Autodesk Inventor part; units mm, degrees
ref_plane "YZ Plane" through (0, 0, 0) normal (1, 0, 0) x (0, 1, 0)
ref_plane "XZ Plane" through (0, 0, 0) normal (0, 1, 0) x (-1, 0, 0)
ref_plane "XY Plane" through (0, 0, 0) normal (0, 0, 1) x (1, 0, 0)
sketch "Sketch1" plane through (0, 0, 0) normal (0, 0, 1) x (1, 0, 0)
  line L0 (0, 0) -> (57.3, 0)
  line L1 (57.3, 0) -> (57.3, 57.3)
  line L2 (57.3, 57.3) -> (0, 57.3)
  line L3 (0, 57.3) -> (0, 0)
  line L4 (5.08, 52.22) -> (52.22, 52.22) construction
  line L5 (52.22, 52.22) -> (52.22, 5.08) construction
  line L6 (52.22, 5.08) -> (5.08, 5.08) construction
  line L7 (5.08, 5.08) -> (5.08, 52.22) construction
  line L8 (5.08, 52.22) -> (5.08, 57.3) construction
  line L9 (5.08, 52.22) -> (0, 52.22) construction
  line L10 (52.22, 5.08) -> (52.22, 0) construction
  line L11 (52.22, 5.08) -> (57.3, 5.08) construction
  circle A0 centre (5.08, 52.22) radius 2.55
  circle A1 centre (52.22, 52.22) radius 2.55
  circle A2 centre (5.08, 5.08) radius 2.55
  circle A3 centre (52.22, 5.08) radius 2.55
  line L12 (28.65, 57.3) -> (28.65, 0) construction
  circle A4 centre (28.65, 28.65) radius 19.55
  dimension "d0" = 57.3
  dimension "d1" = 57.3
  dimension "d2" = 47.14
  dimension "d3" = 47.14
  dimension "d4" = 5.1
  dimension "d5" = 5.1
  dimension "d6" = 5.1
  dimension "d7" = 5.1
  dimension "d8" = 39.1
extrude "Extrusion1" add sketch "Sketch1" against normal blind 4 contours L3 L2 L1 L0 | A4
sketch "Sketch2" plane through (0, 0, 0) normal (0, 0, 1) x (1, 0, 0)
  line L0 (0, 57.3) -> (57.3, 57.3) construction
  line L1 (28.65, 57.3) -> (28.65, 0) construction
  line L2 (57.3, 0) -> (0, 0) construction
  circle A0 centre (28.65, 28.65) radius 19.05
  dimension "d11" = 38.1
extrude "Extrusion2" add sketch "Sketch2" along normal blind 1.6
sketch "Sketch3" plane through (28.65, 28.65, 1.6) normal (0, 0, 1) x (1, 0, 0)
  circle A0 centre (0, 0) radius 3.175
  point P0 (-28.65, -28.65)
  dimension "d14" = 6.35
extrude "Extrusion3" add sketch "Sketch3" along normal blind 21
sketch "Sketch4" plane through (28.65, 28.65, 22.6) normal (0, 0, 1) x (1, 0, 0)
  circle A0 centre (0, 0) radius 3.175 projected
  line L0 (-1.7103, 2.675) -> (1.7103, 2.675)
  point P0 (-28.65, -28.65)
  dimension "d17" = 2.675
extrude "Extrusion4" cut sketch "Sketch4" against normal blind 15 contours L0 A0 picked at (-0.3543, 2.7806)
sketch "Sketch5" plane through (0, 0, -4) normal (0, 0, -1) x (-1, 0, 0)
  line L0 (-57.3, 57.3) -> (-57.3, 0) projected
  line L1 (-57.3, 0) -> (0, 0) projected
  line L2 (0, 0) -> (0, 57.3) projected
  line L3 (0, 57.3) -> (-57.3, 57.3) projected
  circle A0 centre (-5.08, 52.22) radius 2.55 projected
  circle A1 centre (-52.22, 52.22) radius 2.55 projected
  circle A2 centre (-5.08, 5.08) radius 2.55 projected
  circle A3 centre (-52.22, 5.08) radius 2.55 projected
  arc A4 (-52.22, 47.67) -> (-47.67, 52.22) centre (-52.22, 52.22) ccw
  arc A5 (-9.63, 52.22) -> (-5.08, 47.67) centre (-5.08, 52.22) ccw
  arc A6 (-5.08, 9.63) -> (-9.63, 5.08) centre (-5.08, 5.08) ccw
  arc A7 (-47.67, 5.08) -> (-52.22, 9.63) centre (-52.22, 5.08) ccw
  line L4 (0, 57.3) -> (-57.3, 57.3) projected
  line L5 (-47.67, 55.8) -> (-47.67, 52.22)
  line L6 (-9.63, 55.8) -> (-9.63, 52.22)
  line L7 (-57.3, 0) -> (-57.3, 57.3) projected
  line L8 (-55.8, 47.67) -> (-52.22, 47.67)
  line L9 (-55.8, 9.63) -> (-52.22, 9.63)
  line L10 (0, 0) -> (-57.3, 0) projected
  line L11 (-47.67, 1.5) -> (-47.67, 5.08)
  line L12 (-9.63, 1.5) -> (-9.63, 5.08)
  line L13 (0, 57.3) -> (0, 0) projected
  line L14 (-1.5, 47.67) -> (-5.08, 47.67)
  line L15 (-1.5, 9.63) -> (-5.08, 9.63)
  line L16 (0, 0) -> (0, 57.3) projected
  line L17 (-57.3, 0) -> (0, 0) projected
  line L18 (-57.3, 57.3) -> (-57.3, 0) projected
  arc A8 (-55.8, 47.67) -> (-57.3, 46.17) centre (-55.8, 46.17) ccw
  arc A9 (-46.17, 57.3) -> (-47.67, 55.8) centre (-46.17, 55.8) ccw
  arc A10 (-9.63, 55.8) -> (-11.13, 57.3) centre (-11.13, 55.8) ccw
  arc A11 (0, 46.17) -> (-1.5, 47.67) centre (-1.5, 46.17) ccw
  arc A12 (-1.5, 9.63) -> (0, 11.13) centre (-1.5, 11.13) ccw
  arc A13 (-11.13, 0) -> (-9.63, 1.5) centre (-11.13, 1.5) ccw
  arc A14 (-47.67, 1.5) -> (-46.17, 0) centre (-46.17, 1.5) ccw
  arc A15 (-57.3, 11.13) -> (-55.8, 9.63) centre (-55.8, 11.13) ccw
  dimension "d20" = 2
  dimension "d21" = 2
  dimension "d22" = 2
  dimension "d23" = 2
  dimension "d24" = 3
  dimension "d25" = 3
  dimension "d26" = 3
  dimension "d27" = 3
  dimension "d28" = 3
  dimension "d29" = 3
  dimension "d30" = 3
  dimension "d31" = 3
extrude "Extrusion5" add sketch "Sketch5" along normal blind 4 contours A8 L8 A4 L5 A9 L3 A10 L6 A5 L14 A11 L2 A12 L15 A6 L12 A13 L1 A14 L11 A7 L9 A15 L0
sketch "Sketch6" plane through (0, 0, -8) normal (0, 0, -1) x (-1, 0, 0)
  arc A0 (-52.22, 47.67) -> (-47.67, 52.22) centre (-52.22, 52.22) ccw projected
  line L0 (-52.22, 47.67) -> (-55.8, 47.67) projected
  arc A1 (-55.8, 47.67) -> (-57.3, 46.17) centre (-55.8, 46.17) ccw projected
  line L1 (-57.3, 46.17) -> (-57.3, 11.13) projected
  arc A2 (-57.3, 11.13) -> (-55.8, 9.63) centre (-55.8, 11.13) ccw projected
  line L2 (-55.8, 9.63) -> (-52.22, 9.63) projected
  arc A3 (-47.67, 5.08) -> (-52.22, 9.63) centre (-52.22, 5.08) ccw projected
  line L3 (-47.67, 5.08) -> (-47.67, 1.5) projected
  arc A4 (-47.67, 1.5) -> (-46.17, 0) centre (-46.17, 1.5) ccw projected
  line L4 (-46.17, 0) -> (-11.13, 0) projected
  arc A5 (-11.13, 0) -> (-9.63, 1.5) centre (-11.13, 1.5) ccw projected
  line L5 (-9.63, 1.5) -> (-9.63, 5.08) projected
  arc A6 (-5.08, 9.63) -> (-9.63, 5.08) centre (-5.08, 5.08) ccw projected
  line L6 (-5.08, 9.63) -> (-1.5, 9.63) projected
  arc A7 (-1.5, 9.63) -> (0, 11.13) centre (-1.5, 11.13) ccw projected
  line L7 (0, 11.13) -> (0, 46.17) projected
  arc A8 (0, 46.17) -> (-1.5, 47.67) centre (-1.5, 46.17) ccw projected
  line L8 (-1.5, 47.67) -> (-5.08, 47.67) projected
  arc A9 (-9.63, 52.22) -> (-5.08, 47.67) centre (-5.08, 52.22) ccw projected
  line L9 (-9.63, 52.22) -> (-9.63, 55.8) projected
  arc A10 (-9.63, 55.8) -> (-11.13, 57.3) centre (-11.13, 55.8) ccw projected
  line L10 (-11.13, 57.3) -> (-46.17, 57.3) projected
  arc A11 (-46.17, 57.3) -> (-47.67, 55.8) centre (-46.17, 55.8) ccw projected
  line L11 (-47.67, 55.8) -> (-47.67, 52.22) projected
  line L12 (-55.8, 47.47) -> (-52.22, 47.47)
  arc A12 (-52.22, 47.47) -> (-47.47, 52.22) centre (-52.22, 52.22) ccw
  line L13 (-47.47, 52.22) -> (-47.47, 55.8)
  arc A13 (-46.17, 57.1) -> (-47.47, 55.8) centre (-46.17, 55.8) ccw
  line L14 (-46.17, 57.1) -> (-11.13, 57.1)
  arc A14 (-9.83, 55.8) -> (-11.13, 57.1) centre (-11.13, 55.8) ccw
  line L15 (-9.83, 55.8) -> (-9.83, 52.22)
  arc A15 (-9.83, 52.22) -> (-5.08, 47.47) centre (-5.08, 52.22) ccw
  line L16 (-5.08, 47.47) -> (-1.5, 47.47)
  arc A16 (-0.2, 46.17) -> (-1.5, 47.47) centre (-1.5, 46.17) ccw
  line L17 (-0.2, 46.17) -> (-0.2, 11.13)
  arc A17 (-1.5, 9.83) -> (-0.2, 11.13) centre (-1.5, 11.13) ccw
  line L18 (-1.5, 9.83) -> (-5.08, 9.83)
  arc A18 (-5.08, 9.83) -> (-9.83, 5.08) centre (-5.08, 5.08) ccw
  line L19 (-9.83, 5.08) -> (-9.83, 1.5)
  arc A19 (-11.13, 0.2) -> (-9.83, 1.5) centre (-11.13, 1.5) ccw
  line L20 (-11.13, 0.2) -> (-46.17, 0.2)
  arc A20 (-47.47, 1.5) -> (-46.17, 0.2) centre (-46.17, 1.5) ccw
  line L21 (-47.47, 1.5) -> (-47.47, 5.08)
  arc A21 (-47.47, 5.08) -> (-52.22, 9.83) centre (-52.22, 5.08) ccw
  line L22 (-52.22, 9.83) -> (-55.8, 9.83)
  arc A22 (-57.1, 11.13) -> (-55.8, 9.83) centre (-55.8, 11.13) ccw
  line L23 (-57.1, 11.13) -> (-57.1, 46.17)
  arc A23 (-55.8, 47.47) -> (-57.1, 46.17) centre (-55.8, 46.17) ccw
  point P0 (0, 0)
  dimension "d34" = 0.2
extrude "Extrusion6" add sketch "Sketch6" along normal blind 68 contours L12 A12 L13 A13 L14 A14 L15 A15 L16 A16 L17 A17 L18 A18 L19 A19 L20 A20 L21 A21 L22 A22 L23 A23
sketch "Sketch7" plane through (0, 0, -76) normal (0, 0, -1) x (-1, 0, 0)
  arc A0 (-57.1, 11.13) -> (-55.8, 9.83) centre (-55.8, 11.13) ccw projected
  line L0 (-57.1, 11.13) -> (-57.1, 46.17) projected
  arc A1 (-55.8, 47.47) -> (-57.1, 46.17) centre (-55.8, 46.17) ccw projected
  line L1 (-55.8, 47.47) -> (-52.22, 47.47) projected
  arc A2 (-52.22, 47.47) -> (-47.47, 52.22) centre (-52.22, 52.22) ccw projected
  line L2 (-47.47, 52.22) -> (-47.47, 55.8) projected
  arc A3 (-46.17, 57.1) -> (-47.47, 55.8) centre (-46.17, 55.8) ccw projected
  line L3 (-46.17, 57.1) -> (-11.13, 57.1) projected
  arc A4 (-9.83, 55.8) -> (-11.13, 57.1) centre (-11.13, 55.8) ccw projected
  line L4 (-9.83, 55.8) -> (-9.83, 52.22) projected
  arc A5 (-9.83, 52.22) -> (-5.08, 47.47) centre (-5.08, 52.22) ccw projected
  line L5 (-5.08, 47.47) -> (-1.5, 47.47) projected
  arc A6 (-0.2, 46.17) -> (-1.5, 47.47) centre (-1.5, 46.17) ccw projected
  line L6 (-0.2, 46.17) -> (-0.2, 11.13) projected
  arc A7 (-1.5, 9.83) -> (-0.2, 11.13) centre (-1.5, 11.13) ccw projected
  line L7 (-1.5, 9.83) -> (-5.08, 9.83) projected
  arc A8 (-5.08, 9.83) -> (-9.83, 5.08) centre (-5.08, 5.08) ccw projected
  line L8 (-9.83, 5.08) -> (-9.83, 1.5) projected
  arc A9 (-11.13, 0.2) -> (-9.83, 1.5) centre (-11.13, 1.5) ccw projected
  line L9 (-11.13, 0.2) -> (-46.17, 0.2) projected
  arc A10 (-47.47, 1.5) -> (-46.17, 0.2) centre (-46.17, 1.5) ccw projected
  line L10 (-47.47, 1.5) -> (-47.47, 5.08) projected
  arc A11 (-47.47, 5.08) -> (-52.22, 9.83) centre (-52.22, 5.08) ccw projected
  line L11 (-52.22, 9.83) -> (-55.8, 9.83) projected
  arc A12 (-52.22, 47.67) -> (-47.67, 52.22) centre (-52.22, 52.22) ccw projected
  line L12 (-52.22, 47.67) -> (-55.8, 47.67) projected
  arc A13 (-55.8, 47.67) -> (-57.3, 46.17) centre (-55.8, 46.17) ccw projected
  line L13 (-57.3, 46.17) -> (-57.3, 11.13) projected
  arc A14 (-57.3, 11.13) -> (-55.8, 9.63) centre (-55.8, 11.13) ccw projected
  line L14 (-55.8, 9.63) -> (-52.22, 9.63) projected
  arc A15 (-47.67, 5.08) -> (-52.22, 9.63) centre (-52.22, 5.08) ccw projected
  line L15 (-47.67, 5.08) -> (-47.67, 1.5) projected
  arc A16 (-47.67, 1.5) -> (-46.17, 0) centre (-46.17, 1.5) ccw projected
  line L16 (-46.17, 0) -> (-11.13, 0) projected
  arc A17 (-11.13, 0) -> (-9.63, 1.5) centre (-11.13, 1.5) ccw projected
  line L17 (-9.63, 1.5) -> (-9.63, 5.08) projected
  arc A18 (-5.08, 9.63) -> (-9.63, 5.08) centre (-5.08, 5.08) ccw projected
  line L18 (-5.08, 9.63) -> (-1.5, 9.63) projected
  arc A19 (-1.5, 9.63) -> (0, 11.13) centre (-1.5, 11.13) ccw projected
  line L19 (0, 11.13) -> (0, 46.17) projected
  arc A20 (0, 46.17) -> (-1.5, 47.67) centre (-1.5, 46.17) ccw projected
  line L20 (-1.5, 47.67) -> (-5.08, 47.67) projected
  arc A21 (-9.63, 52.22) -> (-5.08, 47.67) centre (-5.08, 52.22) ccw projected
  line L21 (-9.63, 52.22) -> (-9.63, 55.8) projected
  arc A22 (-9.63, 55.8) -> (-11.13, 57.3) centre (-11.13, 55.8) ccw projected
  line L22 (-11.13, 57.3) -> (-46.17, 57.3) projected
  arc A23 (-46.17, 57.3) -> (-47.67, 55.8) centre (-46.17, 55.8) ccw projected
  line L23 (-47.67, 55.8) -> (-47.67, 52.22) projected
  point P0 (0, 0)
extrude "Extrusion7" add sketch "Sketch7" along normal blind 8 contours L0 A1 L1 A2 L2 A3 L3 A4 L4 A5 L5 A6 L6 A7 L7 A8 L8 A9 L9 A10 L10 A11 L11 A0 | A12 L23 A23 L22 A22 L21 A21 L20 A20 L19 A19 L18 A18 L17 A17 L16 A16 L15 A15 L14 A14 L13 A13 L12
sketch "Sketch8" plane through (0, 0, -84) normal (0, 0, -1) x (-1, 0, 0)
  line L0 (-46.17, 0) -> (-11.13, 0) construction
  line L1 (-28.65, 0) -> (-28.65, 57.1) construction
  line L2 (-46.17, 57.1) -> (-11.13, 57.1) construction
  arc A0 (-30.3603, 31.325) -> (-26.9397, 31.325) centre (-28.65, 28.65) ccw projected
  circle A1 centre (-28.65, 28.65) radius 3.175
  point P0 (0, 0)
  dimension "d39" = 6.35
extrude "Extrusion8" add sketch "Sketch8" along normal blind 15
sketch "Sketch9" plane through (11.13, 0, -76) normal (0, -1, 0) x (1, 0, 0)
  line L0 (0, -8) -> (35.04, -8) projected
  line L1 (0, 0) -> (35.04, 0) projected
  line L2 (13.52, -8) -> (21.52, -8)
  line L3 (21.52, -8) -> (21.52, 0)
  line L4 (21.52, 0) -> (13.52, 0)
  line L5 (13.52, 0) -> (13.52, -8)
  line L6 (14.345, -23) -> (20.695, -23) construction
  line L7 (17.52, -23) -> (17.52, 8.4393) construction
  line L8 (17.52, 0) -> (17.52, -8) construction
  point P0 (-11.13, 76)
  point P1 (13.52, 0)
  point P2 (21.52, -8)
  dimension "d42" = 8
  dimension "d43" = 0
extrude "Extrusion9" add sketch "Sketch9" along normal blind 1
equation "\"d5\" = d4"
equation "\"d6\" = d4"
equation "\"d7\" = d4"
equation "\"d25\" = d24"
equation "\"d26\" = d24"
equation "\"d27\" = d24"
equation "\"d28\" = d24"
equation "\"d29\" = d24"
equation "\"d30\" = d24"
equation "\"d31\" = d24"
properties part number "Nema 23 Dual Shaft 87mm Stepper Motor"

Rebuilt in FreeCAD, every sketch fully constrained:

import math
import FreeCAD as App
import Part
import Sketcher
from FreeCAD import Vector
Q = App.Units.Quantity


def add_polygon(sketch, points):
    """Adds a closed chain of lines whose ends are joined by coincident constraints."""
    first, n = sketch.GeometryCount, len(points)
    for a, b in zip(points, points[1:] + points[:1]):
        sketch.addGeometry(Part.LineSegment(App.Vector(*a, 0), App.Vector(*b, 0)), False)
    for i in range(n):
        sketch.addConstraint(Sketcher.Constraint("Coincident", first + i, 2, first + (i + 1) % n, 1))

doc = App.newDocument("Part")
body = doc.addObject("PartDesign::Body", "Body")

sketch1 = body.newObject("Sketcher::SketchObject", "Sketch")
sketch1.AttachmentSupport = (doc.getObject("XY_Plane"), [""])
sketch1.MapMode = "FlatFace"
add_polygon(sketch1, [(0, 57.3), (0, 0), (57.3, 0), (57.3, 57.3)])
sketch1.addGeometry(Part.Circle(Vector(5.08, 5.08, 0), Vector(0, 0, 1), 2.55), False)
sketch1.addGeometry(Part.Circle(Vector(52.22, 5.08, 0), Vector(0, 0, 1), 2.55), False)
sketch1.addGeometry(Part.Circle(Vector(5.08, 52.22, 0), Vector(0, 0, 1), 2.55), False)
sketch1.addGeometry(Part.Circle(Vector(52.22, 52.22, 0), Vector(0, 0, 1), 2.55), False)
sketch1.addConstraint([
    Sketcher.Constraint("Vertical", 0),
    Sketcher.Constraint("Horizontal", 1),
    Sketcher.Constraint("Vertical", 2),
    Sketcher.Constraint("Horizontal", 3),
    Sketcher.Constraint("Coincident", 0, 2, -1, 1),
    Sketcher.Constraint("Equal", 4, 5),
    Sketcher.Constraint("Equal", 5, 6),
    Sketcher.Constraint("Equal", 6, 7),
    Sketcher.Constraint("Horizontal", 4, 3, 5, 3),
    Sketcher.Constraint("Horizontal", 6, 3, 7, 3),
    Sketcher.Constraint("Vertical", 4, 3, 6, 3),
    Sketcher.Constraint("Vertical", 5, 3, 7, 3),
    Sketcher.Constraint("Equal", 3, 0),
    Sketcher.Constraint("Diameter", 4, Q("5.1 mm")),
    Sketcher.Constraint("DistanceX", 1, 1, 1, 2, Q("57.3 mm")),
    Sketcher.Constraint("DistanceX", 4, 3, 5, 3, Q("47.14 mm")),
    Sketcher.Constraint("DistanceY", 4, 3, 6, 3, Q("47.14 mm")),
    Sketcher.Constraint("DistanceX", -1, 1, 4, 3, Q("5.08 mm")),
    Sketcher.Constraint("DistanceY", -1, 1, 4, 3, Q("5.08 mm")),
])
pad1 = body.newObject("PartDesign::Pad", "Pad")
pad1.Profile = sketch1
pad1.Length = 4
pad1.Reversed = True

sketch2 = body.newObject("Sketcher::SketchObject", "Sketch001")
sketch2.AttachmentSupport = (doc.getObject("XY_Plane"), [""])
sketch2.MapMode = "FlatFace"
sketch2.addGeometry(Part.Circle(Vector(28.65, 28.65, 0), Vector(0, 0, 1), 19.05), False)
sketch2.addConstraint([
    Sketcher.Constraint("Diameter", 0, Q("38.1 mm")),
    Sketcher.Constraint("DistanceX", -1, 1, 0, 3, Q("28.65 mm")),
    Sketcher.Constraint("DistanceY", -1, 1, 0, 3, Q("28.65 mm")),
])
pad2 = body.newObject("PartDesign::Pad", "Pad001")
pad2.Profile = sketch2
pad2.Length = 1.6

sketch3 = body.newObject("Sketcher::SketchObject", "Sketch002")
sketch3.AttachmentSupport = (doc.getObject("XY_Plane"), [""])
sketch3.MapMode = "FlatFace"
sketch3.AttachmentOffset = App.Placement(Vector(0, 0, 1.6), App.Rotation())
sketch3.addGeometry(Part.Circle(Vector(28.65, 28.65, 0), Vector(0, 0, 1), 3.175), False)
sketch3.addConstraint([
    Sketcher.Constraint("Diameter", 0, Q("6.35 mm")),
    Sketcher.Constraint("DistanceX", -1, 1, 0, 3, Q("28.65 mm")),
    Sketcher.Constraint("DistanceY", -1, 1, 0, 3, Q("28.65 mm")),
])
pad3 = body.newObject("PartDesign::Pad", "Pad002")
pad3.Profile = sketch3
pad3.Length = 21

sketch4 = body.newObject("Sketcher::SketchObject", "Sketch003")
sketch4.AttachmentSupport = (doc.getObject("XY_Plane"), [""])
sketch4.MapMode = "FlatFace"
sketch4.AttachmentOffset = App.Placement(Vector(0, 0, 22.6), App.Rotation())
sketch4.addGeometry([
    Part.LineSegment(Vector(26.9397, 31.325, 0), Vector(30.3603, 31.325, 0)),
    Part.ArcOfCircle(Part.Circle(Vector(28.65, 28.65, 0), Vector(0, 0, 1), 3.175), math.radians(57.406596), math.radians(122.593404)),
], False)
sketch4.addConstraint([
    Sketcher.Constraint("Coincident", 0, 1, 1, 2),
    Sketcher.Constraint("Coincident", 1, 1, 0, 2),
    Sketcher.Constraint("Horizontal", 0),
    Sketcher.Constraint("Radius", 1, Q("3.175 mm")),
    Sketcher.Constraint("DistanceY", 1, 3, 0, 1, Q("2.675 mm")),
    Sketcher.Constraint("DistanceX", -1, 1, 1, 3, Q("28.65 mm")),
    Sketcher.Constraint("DistanceY", -1, 1, 1, 3, Q("28.65 mm")),
])
pocket1 = body.newObject("PartDesign::Pocket", "Pocket")
pocket1.Profile = sketch4
pocket1.Length = 15

sketch5 = body.newObject("Sketcher::SketchObject", "Sketch004")
sketch5.AttachmentSupport = (doc.getObject("XY_Plane"), [""])
sketch5.MapMode = "FlatFace"
sketch5.AttachmentOffset = App.Placement(Vector(0, 0, -4), App.Rotation())
sketch5.addGeometry([
    Part.ArcOfCircle(Part.Circle(Vector(55.8, 46.17, 0), Vector(0, 0, 1), 1.5), math.radians(0), math.radians(90)),
    Part.LineSegment(Vector(57.3, 46.17, 0), Vector(57.3, 11.13, 0)),
    Part.ArcOfCircle(Part.Circle(Vector(55.8, 11.13, 0), Vector(0, 0, 1), 1.5), math.radians(-90), math.radians(0)),
    Part.LineSegment(Vector(55.8, 9.63, 0), Vector(52.22, 9.63, 0)),
    Part.ArcOfCircle(Part.Circle(Vector(52.22, 5.08, 0), Vector(0, 0, 1), 4.55), math.radians(90), math.radians(180)),
    Part.LineSegment(Vector(47.67, 5.08, 0), Vector(47.67, 1.5, 0)),
    Part.ArcOfCircle(Part.Circle(Vector(46.17, 1.5, 0), Vector(0, 0, 1), 1.5), math.radians(-90), math.radians(0)),
    Part.LineSegment(Vector(46.17, 0, 0), Vector(11.13, 0, 0)),
    Part.ArcOfCircle(Part.Circle(Vector(11.13, 1.5, 0), Vector(0, 0, 1), 1.5), math.radians(180), math.radians(270)),
    Part.LineSegment(Vector(9.63, 1.5, 0), Vector(9.63, 5.08, 0)),
    Part.ArcOfCircle(Part.Circle(Vector(5.08, 5.08, 0), Vector(0, 0, 1), 4.55), math.radians(0), math.radians(90)),
    Part.LineSegment(Vector(5.08, 9.63, 0), Vector(1.5, 9.63, 0)),
    Part.ArcOfCircle(Part.Circle(Vector(1.5, 11.13, 0), Vector(0, 0, 1), 1.5), math.radians(180), math.radians(270)),
    Part.LineSegment(Vector(0, 11.13, 0), Vector(0, 46.17, 0)),
    Part.ArcOfCircle(Part.Circle(Vector(1.5, 46.17, 0), Vector(0, 0, 1), 1.5), math.radians(90), math.radians(180)),
    Part.LineSegment(Vector(1.5, 47.67, 0), Vector(5.08, 47.67, 0)),
    Part.ArcOfCircle(Part.Circle(Vector(5.08, 52.22, 0), Vector(0, 0, 1), 4.55), math.radians(-90), math.radians(0)),
    Part.LineSegment(Vector(9.63, 52.22, 0), Vector(9.63, 55.8, 0)),
    Part.ArcOfCircle(Part.Circle(Vector(11.13, 55.8, 0), Vector(0, 0, 1), 1.5), math.radians(90), math.radians(180)),
    Part.LineSegment(Vector(11.13, 57.3, 0), Vector(46.17, 57.3, 0)),
    Part.ArcOfCircle(Part.Circle(Vector(46.17, 55.8, 0), Vector(0, 0, 1), 1.5), math.radians(0), math.radians(90)),
    Part.LineSegment(Vector(47.67, 55.8, 0), Vector(47.67, 52.22, 0)),
    Part.ArcOfCircle(Part.Circle(Vector(52.22, 52.22, 0), Vector(0, 0, 1), 4.55), math.radians(180), math.radians(270)),
    Part.LineSegment(Vector(52.22, 47.67, 0), Vector(55.8, 47.67, 0)),
], False)
sketch5.addConstraint([
    Sketcher.Constraint("Tangent", 0, 1, 1, 1),
    Sketcher.Constraint("Tangent", 1, 2, 2, 2),
    Sketcher.Constraint("Tangent", 2, 1, 3, 1),
    Sketcher.Constraint("Tangent", 3, 2, 4, 1),
    Sketcher.Constraint("Tangent", 4, 2, 5, 1),
    Sketcher.Constraint("Tangent", 5, 2, 6, 2),
    Sketcher.Constraint("Tangent", 6, 1, 7, 1),
    Sketcher.Constraint("Tangent", 7, 2, 8, 2),
    Sketcher.Constraint("Tangent", 8, 1, 9, 1),
    Sketcher.Constraint("Tangent", 9, 2, 10, 1),
    Sketcher.Constraint("Tangent", 10, 2, 11, 1),
    Sketcher.Constraint("Tangent", 11, 2, 12, 2),
    Sketcher.Constraint("Tangent", 12, 1, 13, 1),
    Sketcher.Constraint("Tangent", 13, 2, 14, 2),
    Sketcher.Constraint("Tangent", 14, 1, 15, 1),
    Sketcher.Constraint("Tangent", 15, 2, 16, 1),
    Sketcher.Constraint("Tangent", 16, 2, 17, 1),
    Sketcher.Constraint("Tangent", 17, 2, 18, 2),
    Sketcher.Constraint("Tangent", 18, 1, 19, 1),
    Sketcher.Constraint("Tangent", 19, 2, 20, 2),
    Sketcher.Constraint("Tangent", 20, 1, 21, 1),
    Sketcher.Constraint("Tangent", 21, 2, 22, 1),
    Sketcher.Constraint("Tangent", 22, 2, 23, 1),
    Sketcher.Constraint("Tangent", 23, 2, 0, 2),
    Sketcher.Constraint("Vertical", 1),
    Sketcher.Constraint("Horizontal", 3),
    Sketcher.Constraint("Vertical", 5),
    Sketcher.Constraint("Horizontal", 7),
    Sketcher.Constraint("Vertical", 9),
    Sketcher.Constraint("Horizontal", 11),
    Sketcher.Constraint("Vertical", 13),
    Sketcher.Constraint("Horizontal", 15),
    Sketcher.Constraint("Vertical", 17),
    Sketcher.Constraint("Horizontal", 19),
    Sketcher.Constraint("Vertical", 21),
    Sketcher.Constraint("Horizontal", 23),
    Sketcher.Constraint("Equal", 0, 2),
    Sketcher.Constraint("Equal", 2, 6),
    Sketcher.Constraint("Equal", 6, 8),
    Sketcher.Constraint("Equal", 4, 10),
    Sketcher.Constraint("Equal", 8, 12),
    Sketcher.Constraint("Equal", 12, 14),
    Sketcher.Constraint("Equal", 10, 16),
    Sketcher.Constraint("Equal", 14, 18),
    Sketcher.Constraint("Equal", 18, 20),
    Sketcher.Constraint("Equal", 16, 22),
    Sketcher.Constraint("PointOnObject", 6, 1, -1),
    Sketcher.Constraint("PointOnObject", 12, 1, -2),
    Sketcher.Constraint("Horizontal", 4, 3, 10, 3),
    Sketcher.Constraint("Horizontal", 0, 3, 14, 3),
    Sketcher.Constraint("Vertical", 10, 3, 16, 3),
    Sketcher.Constraint("Vertical", 6, 3, 20, 3),
    Sketcher.Constraint("Equal", 3, 11),
    Sketcher.Constraint("Equal", 19, 1),
    Sketcher.Constraint("Equal", 23, 5),
    Sketcher.Constraint("Equal", 9, 17),
    Sketcher.Constraint("Radius", 0, Q("1.5 mm")),
    Sketcher.Constraint("Radius", 4, Q("4.55 mm")),
    Sketcher.Constraint("DistanceX", 3, 2, 3, 1, Q("3.58 mm")),
    Sketcher.Constraint("DistanceX", 7, 2, 7, 1, Q("35.04 mm")),
])
pad4 = body.newObject("PartDesign::Pad", "Pad003")
pad4.Profile = sketch5
pad4.Length = 4
pad4.Reversed = True

sketch6 = body.newObject("Sketcher::SketchObject", "Sketch005")
sketch6.AttachmentSupport = (doc.getObject("XY_Plane"), [""])
sketch6.MapMode = "FlatFace"
sketch6.AttachmentOffset = App.Placement(Vector(0, 0, -8), App.Rotation())
sketch6.addGeometry([
    Part.LineSegment(Vector(52.22, 47.47, 0), Vector(55.8, 47.47, 0)),
    Part.ArcOfCircle(Part.Circle(Vector(55.8, 46.17, 0), Vector(0, 0, 1), 1.3), math.radians(0), math.radians(90)),
    Part.LineSegment(Vector(57.1, 46.17, 0), Vector(57.1, 11.13, 0)),
    Part.ArcOfCircle(Part.Circle(Vector(55.8, 11.13, 0), Vector(0, 0, 1), 1.3), math.radians(-90), math.radians(0)),
    Part.LineSegment(Vector(55.8, 9.83, 0), Vector(52.22, 9.83, 0)),
    Part.ArcOfCircle(Part.Circle(Vector(52.22, 5.08, 0), Vector(0, 0, 1), 4.75), math.radians(90), math.radians(180)),
    Part.LineSegment(Vector(47.47, 5.08, 0), Vector(47.47, 1.5, 0)),
    Part.ArcOfCircle(Part.Circle(Vector(46.17, 1.5, 0), Vector(0, 0, 1), 1.3), math.radians(-90), math.radians(0)),
    Part.LineSegment(Vector(46.17, 0.2, 0), Vector(11.13, 0.2, 0)),
    Part.ArcOfCircle(Part.Circle(Vector(11.13, 1.5, 0), Vector(0, 0, 1), 1.3), math.radians(180), math.radians(270)),
    Part.LineSegment(Vector(9.83, 1.5, 0), Vector(9.83, 5.08, 0)),
    Part.ArcOfCircle(Part.Circle(Vector(5.08, 5.08, 0), Vector(0, 0, 1), 4.75), math.radians(0), math.radians(90)),
    Part.LineSegment(Vector(5.08, 9.83, 0), Vector(1.5, 9.83, 0)),
    Part.ArcOfCircle(Part.Circle(Vector(1.5, 11.13, 0), Vector(0, 0, 1), 1.3), math.radians(180), math.radians(270)),
    Part.LineSegment(Vector(0.2, 11.13, 0), Vector(0.2, 46.17, 0)),
    Part.ArcOfCircle(Part.Circle(Vector(1.5, 46.17, 0), Vector(0, 0, 1), 1.3), math.radians(90), math.radians(180)),
    Part.LineSegment(Vector(1.5, 47.47, 0), Vector(5.08, 47.47, 0)),
    Part.ArcOfCircle(Part.Circle(Vector(5.08, 52.22, 0), Vector(0, 0, 1), 4.75), math.radians(-90), math.radians(0)),
    Part.LineSegment(Vector(9.83, 52.22, 0), Vector(9.83, 55.8, 0)),
    Part.ArcOfCircle(Part.Circle(Vector(11.13, 55.8, 0), Vector(0, 0, 1), 1.3), math.radians(90), math.radians(180)),
    Part.LineSegment(Vector(11.13, 57.1, 0), Vector(46.17, 57.1, 0)),
    Part.ArcOfCircle(Part.Circle(Vector(46.17, 55.8, 0), Vector(0, 0, 1), 1.3), math.radians(0), math.radians(90)),
    Part.LineSegment(Vector(47.47, 55.8, 0), Vector(47.47, 52.22, 0)),
    Part.ArcOfCircle(Part.Circle(Vector(52.22, 52.22, 0), Vector(0, 0, 1), 4.75), math.radians(180), math.radians(270)),
], False)
sketch6.addConstraint([
    Sketcher.Constraint("Tangent", 0, 2, 1, 2),
    Sketcher.Constraint("Tangent", 1, 1, 2, 1),
    Sketcher.Constraint("Tangent", 2, 2, 3, 2),
    Sketcher.Constraint("Tangent", 3, 1, 4, 1),
    Sketcher.Constraint("Tangent", 4, 2, 5, 1),
    Sketcher.Constraint("Tangent", 5, 2, 6, 1),
    Sketcher.Constraint("Tangent", 6, 2, 7, 2),
    Sketcher.Constraint("Tangent", 7, 1, 8, 1),
    Sketcher.Constraint("Tangent", 8, 2, 9, 2),
    Sketcher.Constraint("Tangent", 9, 1, 10, 1),
    Sketcher.Constraint("Tangent", 10, 2, 11, 1),
    Sketcher.Constraint("Tangent", 11, 2, 12, 1),
    Sketcher.Constraint("Tangent", 12, 2, 13, 2),
    Sketcher.Constraint("Tangent", 13, 1, 14, 1),
    Sketcher.Constraint("Tangent", 14, 2, 15, 2),
    Sketcher.Constraint("Tangent", 15, 1, 16, 1),
    Sketcher.Constraint("Tangent", 16, 2, 17, 1),
    Sketcher.Constraint("Tangent", 17, 2, 18, 1),
    Sketcher.Constraint("Tangent", 18, 2, 19, 2),
    Sketcher.Constraint("Tangent", 19, 1, 20, 1),
    Sketcher.Constraint("Tangent", 20, 2, 21, 2),
    Sketcher.Constraint("Tangent", 21, 1, 22, 1),
    Sketcher.Constraint("Tangent", 22, 2, 23, 1),
    Sketcher.Constraint("Tangent", 23, 2, 0, 1),
    Sketcher.Constraint("Horizontal", 0),
    Sketcher.Constraint("Vertical", 2),
    Sketcher.Constraint("Horizontal", 4),
    Sketcher.Constraint("Vertical", 6),
    Sketcher.Constraint("Horizontal", 8),
    Sketcher.Constraint("Vertical", 10),
    Sketcher.Constraint("Horizontal", 12),
    Sketcher.Constraint("Vertical", 14),
    Sketcher.Constraint("Horizontal", 16),
    Sketcher.Constraint("Vertical", 18),
    Sketcher.Constraint("Horizontal", 20),
    Sketcher.Constraint("Vertical", 22),
    Sketcher.Constraint("Equal", 1, 3),
    Sketcher.Constraint("Equal", 3, 7),
    Sketcher.Constraint("Equal", 7, 9),
    Sketcher.Constraint("Equal", 5, 11),
    Sketcher.Constraint("Equal", 9, 13),
    Sketcher.Constraint("Equal", 13, 15),
    Sketcher.Constraint("Equal", 11, 17),
    Sketcher.Constraint("Equal", 15, 19),
    Sketcher.Constraint("Equal", 19, 21),
    Sketcher.Constraint("Equal", 17, 23),
    Sketcher.Constraint("Horizontal", 5, 3, 11, 3),
    Sketcher.Constraint("Horizontal", 1, 3, 15, 3),
    Sketcher.Constraint("Vertical", 11, 3, 17, 3),
    Sketcher.Constraint("Vertical", 7, 3, 21, 3),
    Sketcher.Constraint("Equal", 4, 12),
    Sketcher.Constraint("Equal", 20, 2),
    Sketcher.Constraint("Equal", 16, 6),
    Sketcher.Constraint("Equal", 10, 18),
    Sketcher.Constraint("DistanceY", -1, 1, 7, 1, Q("0.2 mm")),
    Sketcher.Constraint("DistanceX", -1, 1, 13, 1, Q("0.2 mm")),
    Sketcher.Constraint("Radius", 1, Q("1.3 mm")),
    Sketcher.Constraint("Radius", 5, Q("4.75 mm")),
    Sketcher.Constraint("DistanceX", 0, 1, 0, 2, Q("3.58 mm")),
    Sketcher.Constraint("DistanceX", 8, 2, 8, 1, Q("35.04 mm")),
])
pad5 = body.newObject("PartDesign::Pad", "Pad004")
pad5.Profile = sketch6
pad5.Length = 68
pad5.Reversed = True

sketch7 = body.newObject("Sketcher::SketchObject", "Sketch006")
sketch7.AttachmentSupport = (doc.getObject("XY_Plane"), [""])
sketch7.MapMode = "FlatFace"
sketch7.AttachmentOffset = App.Placement(Vector(0, 0, -76), App.Rotation())
sketch7.addGeometry([
    Part.ArcOfCircle(Part.Circle(Vector(52.22, 52.22, 0), Vector(0, 0, 1), 4.55), math.radians(180), math.radians(270)),
    Part.LineSegment(Vector(52.22, 47.67, 0), Vector(55.8, 47.67, 0)),
    Part.ArcOfCircle(Part.Circle(Vector(55.8, 46.17, 0), Vector(0, 0, 1), 1.5), math.radians(0), math.radians(90)),
    Part.LineSegment(Vector(57.3, 46.17, 0), Vector(57.3, 11.13, 0)),
    Part.ArcOfCircle(Part.Circle(Vector(55.8, 11.13, 0), Vector(0, 0, 1), 1.5), math.radians(-90), math.radians(0)),
    Part.LineSegment(Vector(55.8, 9.63, 0), Vector(52.22, 9.63, 0)),
    Part.ArcOfCircle(Part.Circle(Vector(52.22, 5.08, 0), Vector(0, 0, 1), 4.55), math.radians(90), math.radians(180)),
    Part.LineSegment(Vector(47.67, 5.08, 0), Vector(47.67, 1.5, 0)),
    Part.ArcOfCircle(Part.Circle(Vector(46.17, 1.5, 0), Vector(0, 0, 1), 1.5), math.radians(-90), math.radians(0)),
    Part.LineSegment(Vector(46.17, 0, 0), Vector(11.13, 0, 0)),
    Part.ArcOfCircle(Part.Circle(Vector(11.13, 1.5, 0), Vector(0, 0, 1), 1.5), math.radians(180), math.radians(270)),
    Part.LineSegment(Vector(9.63, 1.5, 0), Vector(9.63, 5.08, 0)),
    Part.ArcOfCircle(Part.Circle(Vector(5.08, 5.08, 0), Vector(0, 0, 1), 4.55), math.radians(0), math.radians(90)),
    Part.LineSegment(Vector(5.08, 9.63, 0), Vector(1.5, 9.63, 0)),
    Part.ArcOfCircle(Part.Circle(Vector(1.5, 11.13, 0), Vector(0, 0, 1), 1.5), math.radians(180), math.radians(270)),
    Part.LineSegment(Vector(0, 11.13, 0), Vector(0, 46.17, 0)),
    Part.ArcOfCircle(Part.Circle(Vector(1.5, 46.17, 0), Vector(0, 0, 1), 1.5), math.radians(90), math.radians(180)),
    Part.LineSegment(Vector(1.5, 47.67, 0), Vector(5.08, 47.67, 0)),
    Part.ArcOfCircle(Part.Circle(Vector(5.08, 52.22, 0), Vector(0, 0, 1), 4.55), math.radians(-90), math.radians(0)),
    Part.LineSegment(Vector(9.63, 52.22, 0), Vector(9.63, 55.8, 0)),
    Part.ArcOfCircle(Part.Circle(Vector(11.13, 55.8, 0), Vector(0, 0, 1), 1.5), math.radians(90), math.radians(180)),
    Part.LineSegment(Vector(11.13, 57.3, 0), Vector(46.17, 57.3, 0)),
    Part.ArcOfCircle(Part.Circle(Vector(46.17, 55.8, 0), Vector(0, 0, 1), 1.5), math.radians(0), math.radians(90)),
    Part.LineSegment(Vector(47.67, 55.8, 0), Vector(47.67, 52.22, 0)),
], False)
sketch7.addConstraint([
    Sketcher.Constraint("Tangent", 0, 2, 1, 1),
    Sketcher.Constraint("Tangent", 1, 2, 2, 2),
    Sketcher.Constraint("Tangent", 2, 1, 3, 1),
    Sketcher.Constraint("Tangent", 3, 2, 4, 2),
    Sketcher.Constraint("Tangent", 4, 1, 5, 1),
    Sketcher.Constraint("Tangent", 5, 2, 6, 1),
    Sketcher.Constraint("Tangent", 6, 2, 7, 1),
    Sketcher.Constraint("Tangent", 7, 2, 8, 2),
    Sketcher.Constraint("Tangent", 8, 1, 9, 1),
    Sketcher.Constraint("Tangent", 9, 2, 10, 2),
    Sketcher.Constraint("Tangent", 10, 1, 11, 1),
    Sketcher.Constraint("Tangent", 11, 2, 12, 1),
    Sketcher.Constraint("Tangent", 12, 2, 13, 1),
    Sketcher.Constraint("Tangent", 13, 2, 14, 2),
    Sketcher.Constraint("Tangent", 14, 1, 15, 1),
    Sketcher.Constraint("Tangent", 15, 2, 16, 2),
    Sketcher.Constraint("Tangent", 16, 1, 17, 1),
    Sketcher.Constraint("Tangent", 17, 2, 18, 1),
    Sketcher.Constraint("Tangent", 18, 2, 19, 1),
    Sketcher.Constraint("Tangent", 19, 2, 20, 2),
    Sketcher.Constraint("Tangent", 20, 1, 21, 1),
    Sketcher.Constraint("Tangent", 21, 2, 22, 2),
    Sketcher.Constraint("Tangent", 22, 1, 23, 1),
    Sketcher.Constraint("Tangent", 23, 2, 0, 1),
    Sketcher.Constraint("Horizontal", 1),
    Sketcher.Constraint("Vertical", 3),
    Sketcher.Constraint("Horizontal", 5),
    Sketcher.Constraint("Vertical", 7),
    Sketcher.Constraint("Horizontal", 9),
    Sketcher.Constraint("Vertical", 11),
    Sketcher.Constraint("Horizontal", 13),
    Sketcher.Constraint("Vertical", 15),
    Sketcher.Constraint("Horizontal", 17),
    Sketcher.Constraint("Vertical", 19),
    Sketcher.Constraint("Horizontal", 21),
    Sketcher.Constraint("Vertical", 23),
    Sketcher.Constraint("Equal", 2, 4),
    Sketcher.Constraint("Equal", 0, 6),
    Sketcher.Constraint("Equal", 4, 8),
    Sketcher.Constraint("Equal", 8, 10),
    Sketcher.Constraint("Equal", 6, 12),
    Sketcher.Constraint("Equal", 10, 14),
    Sketcher.Constraint("Equal", 14, 16),
    Sketcher.Constraint("Equal", 12, 18),
    Sketcher.Constraint("Equal", 16, 20),
    Sketcher.Constraint("Equal", 20, 22),
    Sketcher.Constraint("PointOnObject", 8, 1, -1),
    Sketcher.Constraint("PointOnObject", 14, 1, -2),
    Sketcher.Constraint("Horizontal", 6, 3, 12, 3),
    Sketcher.Constraint("Horizontal", 2, 3, 16, 3),
    Sketcher.Constraint("Vertical", 0, 3, 6, 3),
    Sketcher.Constraint("Vertical", 12, 3, 18, 3),
    Sketcher.Constraint("Equal", 5, 13),
    Sketcher.Constraint("Equal", 21, 3),
    Sketcher.Constraint("Equal", 17, 7),
    Sketcher.Constraint("Equal", 11, 19),
    Sketcher.Constraint("Radius", 2, Q("1.5 mm")),
    Sketcher.Constraint("Radius", 0, Q("4.55 mm")),
    Sketcher.Constraint("DistanceX", 1, 1, 1, 2, Q("3.58 mm")),
    Sketcher.Constraint("DistanceX", 9, 2, 9, 1, Q("35.04 mm")),
])
pad6 = body.newObject("PartDesign::Pad", "Pad005")
pad6.Profile = sketch7
pad6.Length = 8
pad6.Reversed = True

sketch8 = body.newObject("Sketcher::SketchObject", "Sketch007")
sketch8.AttachmentSupport = (doc.getObject("XY_Plane"), [""])
sketch8.MapMode = "FlatFace"
sketch8.AttachmentOffset = App.Placement(Vector(0, 0, -84), App.Rotation())
sketch8.addGeometry(Part.Circle(Vector(28.65, 28.65, 0), Vector(0, 0, 1), 3.17502), False)
sketch8.addConstraint([
    Sketcher.Constraint("Diameter", 0, Q("6.35 mm")),
    Sketcher.Constraint("DistanceX", -1, 1, 0, 3, Q("28.65 mm")),
    Sketcher.Constraint("DistanceY", -1, 1, 0, 3, Q("28.65 mm")),
])
pad7 = body.newObject("PartDesign::Pad", "Pad006")
pad7.Profile = sketch8
pad7.Length = 15
pad7.Reversed = True

sketch9 = body.newObject("Sketcher::SketchObject", "Sketch008")
sketch9.AttachmentSupport = (doc.getObject("XZ_Plane"), [""])
sketch9.MapMode = "FlatFace"
add_polygon(sketch9, [(24.65, -76), (24.65, -84), (32.65, -84), (32.65, -76)])
sketch9.addConstraint([
    Sketcher.Constraint("Vertical", 0),
    Sketcher.Constraint("Horizontal", 1),
    Sketcher.Constraint("Vertical", 2),
    Sketcher.Constraint("Horizontal", 3),
    Sketcher.Constraint("Equal", 3, 0),
    Sketcher.Constraint("DistanceX", 1, 1, 1, 2, Q("8 mm")),
    Sketcher.Constraint("DistanceY", 0, 2, -1, 1, Q("84 mm")),
    Sketcher.Constraint("DistanceX", -1, 1, 0, 2, Q("24.65 mm")),
])
pad8 = body.newObject("PartDesign::Pad", "Pad007")
pad8.Profile = sketch9
pad8.Length = 1

doc.recompute()
